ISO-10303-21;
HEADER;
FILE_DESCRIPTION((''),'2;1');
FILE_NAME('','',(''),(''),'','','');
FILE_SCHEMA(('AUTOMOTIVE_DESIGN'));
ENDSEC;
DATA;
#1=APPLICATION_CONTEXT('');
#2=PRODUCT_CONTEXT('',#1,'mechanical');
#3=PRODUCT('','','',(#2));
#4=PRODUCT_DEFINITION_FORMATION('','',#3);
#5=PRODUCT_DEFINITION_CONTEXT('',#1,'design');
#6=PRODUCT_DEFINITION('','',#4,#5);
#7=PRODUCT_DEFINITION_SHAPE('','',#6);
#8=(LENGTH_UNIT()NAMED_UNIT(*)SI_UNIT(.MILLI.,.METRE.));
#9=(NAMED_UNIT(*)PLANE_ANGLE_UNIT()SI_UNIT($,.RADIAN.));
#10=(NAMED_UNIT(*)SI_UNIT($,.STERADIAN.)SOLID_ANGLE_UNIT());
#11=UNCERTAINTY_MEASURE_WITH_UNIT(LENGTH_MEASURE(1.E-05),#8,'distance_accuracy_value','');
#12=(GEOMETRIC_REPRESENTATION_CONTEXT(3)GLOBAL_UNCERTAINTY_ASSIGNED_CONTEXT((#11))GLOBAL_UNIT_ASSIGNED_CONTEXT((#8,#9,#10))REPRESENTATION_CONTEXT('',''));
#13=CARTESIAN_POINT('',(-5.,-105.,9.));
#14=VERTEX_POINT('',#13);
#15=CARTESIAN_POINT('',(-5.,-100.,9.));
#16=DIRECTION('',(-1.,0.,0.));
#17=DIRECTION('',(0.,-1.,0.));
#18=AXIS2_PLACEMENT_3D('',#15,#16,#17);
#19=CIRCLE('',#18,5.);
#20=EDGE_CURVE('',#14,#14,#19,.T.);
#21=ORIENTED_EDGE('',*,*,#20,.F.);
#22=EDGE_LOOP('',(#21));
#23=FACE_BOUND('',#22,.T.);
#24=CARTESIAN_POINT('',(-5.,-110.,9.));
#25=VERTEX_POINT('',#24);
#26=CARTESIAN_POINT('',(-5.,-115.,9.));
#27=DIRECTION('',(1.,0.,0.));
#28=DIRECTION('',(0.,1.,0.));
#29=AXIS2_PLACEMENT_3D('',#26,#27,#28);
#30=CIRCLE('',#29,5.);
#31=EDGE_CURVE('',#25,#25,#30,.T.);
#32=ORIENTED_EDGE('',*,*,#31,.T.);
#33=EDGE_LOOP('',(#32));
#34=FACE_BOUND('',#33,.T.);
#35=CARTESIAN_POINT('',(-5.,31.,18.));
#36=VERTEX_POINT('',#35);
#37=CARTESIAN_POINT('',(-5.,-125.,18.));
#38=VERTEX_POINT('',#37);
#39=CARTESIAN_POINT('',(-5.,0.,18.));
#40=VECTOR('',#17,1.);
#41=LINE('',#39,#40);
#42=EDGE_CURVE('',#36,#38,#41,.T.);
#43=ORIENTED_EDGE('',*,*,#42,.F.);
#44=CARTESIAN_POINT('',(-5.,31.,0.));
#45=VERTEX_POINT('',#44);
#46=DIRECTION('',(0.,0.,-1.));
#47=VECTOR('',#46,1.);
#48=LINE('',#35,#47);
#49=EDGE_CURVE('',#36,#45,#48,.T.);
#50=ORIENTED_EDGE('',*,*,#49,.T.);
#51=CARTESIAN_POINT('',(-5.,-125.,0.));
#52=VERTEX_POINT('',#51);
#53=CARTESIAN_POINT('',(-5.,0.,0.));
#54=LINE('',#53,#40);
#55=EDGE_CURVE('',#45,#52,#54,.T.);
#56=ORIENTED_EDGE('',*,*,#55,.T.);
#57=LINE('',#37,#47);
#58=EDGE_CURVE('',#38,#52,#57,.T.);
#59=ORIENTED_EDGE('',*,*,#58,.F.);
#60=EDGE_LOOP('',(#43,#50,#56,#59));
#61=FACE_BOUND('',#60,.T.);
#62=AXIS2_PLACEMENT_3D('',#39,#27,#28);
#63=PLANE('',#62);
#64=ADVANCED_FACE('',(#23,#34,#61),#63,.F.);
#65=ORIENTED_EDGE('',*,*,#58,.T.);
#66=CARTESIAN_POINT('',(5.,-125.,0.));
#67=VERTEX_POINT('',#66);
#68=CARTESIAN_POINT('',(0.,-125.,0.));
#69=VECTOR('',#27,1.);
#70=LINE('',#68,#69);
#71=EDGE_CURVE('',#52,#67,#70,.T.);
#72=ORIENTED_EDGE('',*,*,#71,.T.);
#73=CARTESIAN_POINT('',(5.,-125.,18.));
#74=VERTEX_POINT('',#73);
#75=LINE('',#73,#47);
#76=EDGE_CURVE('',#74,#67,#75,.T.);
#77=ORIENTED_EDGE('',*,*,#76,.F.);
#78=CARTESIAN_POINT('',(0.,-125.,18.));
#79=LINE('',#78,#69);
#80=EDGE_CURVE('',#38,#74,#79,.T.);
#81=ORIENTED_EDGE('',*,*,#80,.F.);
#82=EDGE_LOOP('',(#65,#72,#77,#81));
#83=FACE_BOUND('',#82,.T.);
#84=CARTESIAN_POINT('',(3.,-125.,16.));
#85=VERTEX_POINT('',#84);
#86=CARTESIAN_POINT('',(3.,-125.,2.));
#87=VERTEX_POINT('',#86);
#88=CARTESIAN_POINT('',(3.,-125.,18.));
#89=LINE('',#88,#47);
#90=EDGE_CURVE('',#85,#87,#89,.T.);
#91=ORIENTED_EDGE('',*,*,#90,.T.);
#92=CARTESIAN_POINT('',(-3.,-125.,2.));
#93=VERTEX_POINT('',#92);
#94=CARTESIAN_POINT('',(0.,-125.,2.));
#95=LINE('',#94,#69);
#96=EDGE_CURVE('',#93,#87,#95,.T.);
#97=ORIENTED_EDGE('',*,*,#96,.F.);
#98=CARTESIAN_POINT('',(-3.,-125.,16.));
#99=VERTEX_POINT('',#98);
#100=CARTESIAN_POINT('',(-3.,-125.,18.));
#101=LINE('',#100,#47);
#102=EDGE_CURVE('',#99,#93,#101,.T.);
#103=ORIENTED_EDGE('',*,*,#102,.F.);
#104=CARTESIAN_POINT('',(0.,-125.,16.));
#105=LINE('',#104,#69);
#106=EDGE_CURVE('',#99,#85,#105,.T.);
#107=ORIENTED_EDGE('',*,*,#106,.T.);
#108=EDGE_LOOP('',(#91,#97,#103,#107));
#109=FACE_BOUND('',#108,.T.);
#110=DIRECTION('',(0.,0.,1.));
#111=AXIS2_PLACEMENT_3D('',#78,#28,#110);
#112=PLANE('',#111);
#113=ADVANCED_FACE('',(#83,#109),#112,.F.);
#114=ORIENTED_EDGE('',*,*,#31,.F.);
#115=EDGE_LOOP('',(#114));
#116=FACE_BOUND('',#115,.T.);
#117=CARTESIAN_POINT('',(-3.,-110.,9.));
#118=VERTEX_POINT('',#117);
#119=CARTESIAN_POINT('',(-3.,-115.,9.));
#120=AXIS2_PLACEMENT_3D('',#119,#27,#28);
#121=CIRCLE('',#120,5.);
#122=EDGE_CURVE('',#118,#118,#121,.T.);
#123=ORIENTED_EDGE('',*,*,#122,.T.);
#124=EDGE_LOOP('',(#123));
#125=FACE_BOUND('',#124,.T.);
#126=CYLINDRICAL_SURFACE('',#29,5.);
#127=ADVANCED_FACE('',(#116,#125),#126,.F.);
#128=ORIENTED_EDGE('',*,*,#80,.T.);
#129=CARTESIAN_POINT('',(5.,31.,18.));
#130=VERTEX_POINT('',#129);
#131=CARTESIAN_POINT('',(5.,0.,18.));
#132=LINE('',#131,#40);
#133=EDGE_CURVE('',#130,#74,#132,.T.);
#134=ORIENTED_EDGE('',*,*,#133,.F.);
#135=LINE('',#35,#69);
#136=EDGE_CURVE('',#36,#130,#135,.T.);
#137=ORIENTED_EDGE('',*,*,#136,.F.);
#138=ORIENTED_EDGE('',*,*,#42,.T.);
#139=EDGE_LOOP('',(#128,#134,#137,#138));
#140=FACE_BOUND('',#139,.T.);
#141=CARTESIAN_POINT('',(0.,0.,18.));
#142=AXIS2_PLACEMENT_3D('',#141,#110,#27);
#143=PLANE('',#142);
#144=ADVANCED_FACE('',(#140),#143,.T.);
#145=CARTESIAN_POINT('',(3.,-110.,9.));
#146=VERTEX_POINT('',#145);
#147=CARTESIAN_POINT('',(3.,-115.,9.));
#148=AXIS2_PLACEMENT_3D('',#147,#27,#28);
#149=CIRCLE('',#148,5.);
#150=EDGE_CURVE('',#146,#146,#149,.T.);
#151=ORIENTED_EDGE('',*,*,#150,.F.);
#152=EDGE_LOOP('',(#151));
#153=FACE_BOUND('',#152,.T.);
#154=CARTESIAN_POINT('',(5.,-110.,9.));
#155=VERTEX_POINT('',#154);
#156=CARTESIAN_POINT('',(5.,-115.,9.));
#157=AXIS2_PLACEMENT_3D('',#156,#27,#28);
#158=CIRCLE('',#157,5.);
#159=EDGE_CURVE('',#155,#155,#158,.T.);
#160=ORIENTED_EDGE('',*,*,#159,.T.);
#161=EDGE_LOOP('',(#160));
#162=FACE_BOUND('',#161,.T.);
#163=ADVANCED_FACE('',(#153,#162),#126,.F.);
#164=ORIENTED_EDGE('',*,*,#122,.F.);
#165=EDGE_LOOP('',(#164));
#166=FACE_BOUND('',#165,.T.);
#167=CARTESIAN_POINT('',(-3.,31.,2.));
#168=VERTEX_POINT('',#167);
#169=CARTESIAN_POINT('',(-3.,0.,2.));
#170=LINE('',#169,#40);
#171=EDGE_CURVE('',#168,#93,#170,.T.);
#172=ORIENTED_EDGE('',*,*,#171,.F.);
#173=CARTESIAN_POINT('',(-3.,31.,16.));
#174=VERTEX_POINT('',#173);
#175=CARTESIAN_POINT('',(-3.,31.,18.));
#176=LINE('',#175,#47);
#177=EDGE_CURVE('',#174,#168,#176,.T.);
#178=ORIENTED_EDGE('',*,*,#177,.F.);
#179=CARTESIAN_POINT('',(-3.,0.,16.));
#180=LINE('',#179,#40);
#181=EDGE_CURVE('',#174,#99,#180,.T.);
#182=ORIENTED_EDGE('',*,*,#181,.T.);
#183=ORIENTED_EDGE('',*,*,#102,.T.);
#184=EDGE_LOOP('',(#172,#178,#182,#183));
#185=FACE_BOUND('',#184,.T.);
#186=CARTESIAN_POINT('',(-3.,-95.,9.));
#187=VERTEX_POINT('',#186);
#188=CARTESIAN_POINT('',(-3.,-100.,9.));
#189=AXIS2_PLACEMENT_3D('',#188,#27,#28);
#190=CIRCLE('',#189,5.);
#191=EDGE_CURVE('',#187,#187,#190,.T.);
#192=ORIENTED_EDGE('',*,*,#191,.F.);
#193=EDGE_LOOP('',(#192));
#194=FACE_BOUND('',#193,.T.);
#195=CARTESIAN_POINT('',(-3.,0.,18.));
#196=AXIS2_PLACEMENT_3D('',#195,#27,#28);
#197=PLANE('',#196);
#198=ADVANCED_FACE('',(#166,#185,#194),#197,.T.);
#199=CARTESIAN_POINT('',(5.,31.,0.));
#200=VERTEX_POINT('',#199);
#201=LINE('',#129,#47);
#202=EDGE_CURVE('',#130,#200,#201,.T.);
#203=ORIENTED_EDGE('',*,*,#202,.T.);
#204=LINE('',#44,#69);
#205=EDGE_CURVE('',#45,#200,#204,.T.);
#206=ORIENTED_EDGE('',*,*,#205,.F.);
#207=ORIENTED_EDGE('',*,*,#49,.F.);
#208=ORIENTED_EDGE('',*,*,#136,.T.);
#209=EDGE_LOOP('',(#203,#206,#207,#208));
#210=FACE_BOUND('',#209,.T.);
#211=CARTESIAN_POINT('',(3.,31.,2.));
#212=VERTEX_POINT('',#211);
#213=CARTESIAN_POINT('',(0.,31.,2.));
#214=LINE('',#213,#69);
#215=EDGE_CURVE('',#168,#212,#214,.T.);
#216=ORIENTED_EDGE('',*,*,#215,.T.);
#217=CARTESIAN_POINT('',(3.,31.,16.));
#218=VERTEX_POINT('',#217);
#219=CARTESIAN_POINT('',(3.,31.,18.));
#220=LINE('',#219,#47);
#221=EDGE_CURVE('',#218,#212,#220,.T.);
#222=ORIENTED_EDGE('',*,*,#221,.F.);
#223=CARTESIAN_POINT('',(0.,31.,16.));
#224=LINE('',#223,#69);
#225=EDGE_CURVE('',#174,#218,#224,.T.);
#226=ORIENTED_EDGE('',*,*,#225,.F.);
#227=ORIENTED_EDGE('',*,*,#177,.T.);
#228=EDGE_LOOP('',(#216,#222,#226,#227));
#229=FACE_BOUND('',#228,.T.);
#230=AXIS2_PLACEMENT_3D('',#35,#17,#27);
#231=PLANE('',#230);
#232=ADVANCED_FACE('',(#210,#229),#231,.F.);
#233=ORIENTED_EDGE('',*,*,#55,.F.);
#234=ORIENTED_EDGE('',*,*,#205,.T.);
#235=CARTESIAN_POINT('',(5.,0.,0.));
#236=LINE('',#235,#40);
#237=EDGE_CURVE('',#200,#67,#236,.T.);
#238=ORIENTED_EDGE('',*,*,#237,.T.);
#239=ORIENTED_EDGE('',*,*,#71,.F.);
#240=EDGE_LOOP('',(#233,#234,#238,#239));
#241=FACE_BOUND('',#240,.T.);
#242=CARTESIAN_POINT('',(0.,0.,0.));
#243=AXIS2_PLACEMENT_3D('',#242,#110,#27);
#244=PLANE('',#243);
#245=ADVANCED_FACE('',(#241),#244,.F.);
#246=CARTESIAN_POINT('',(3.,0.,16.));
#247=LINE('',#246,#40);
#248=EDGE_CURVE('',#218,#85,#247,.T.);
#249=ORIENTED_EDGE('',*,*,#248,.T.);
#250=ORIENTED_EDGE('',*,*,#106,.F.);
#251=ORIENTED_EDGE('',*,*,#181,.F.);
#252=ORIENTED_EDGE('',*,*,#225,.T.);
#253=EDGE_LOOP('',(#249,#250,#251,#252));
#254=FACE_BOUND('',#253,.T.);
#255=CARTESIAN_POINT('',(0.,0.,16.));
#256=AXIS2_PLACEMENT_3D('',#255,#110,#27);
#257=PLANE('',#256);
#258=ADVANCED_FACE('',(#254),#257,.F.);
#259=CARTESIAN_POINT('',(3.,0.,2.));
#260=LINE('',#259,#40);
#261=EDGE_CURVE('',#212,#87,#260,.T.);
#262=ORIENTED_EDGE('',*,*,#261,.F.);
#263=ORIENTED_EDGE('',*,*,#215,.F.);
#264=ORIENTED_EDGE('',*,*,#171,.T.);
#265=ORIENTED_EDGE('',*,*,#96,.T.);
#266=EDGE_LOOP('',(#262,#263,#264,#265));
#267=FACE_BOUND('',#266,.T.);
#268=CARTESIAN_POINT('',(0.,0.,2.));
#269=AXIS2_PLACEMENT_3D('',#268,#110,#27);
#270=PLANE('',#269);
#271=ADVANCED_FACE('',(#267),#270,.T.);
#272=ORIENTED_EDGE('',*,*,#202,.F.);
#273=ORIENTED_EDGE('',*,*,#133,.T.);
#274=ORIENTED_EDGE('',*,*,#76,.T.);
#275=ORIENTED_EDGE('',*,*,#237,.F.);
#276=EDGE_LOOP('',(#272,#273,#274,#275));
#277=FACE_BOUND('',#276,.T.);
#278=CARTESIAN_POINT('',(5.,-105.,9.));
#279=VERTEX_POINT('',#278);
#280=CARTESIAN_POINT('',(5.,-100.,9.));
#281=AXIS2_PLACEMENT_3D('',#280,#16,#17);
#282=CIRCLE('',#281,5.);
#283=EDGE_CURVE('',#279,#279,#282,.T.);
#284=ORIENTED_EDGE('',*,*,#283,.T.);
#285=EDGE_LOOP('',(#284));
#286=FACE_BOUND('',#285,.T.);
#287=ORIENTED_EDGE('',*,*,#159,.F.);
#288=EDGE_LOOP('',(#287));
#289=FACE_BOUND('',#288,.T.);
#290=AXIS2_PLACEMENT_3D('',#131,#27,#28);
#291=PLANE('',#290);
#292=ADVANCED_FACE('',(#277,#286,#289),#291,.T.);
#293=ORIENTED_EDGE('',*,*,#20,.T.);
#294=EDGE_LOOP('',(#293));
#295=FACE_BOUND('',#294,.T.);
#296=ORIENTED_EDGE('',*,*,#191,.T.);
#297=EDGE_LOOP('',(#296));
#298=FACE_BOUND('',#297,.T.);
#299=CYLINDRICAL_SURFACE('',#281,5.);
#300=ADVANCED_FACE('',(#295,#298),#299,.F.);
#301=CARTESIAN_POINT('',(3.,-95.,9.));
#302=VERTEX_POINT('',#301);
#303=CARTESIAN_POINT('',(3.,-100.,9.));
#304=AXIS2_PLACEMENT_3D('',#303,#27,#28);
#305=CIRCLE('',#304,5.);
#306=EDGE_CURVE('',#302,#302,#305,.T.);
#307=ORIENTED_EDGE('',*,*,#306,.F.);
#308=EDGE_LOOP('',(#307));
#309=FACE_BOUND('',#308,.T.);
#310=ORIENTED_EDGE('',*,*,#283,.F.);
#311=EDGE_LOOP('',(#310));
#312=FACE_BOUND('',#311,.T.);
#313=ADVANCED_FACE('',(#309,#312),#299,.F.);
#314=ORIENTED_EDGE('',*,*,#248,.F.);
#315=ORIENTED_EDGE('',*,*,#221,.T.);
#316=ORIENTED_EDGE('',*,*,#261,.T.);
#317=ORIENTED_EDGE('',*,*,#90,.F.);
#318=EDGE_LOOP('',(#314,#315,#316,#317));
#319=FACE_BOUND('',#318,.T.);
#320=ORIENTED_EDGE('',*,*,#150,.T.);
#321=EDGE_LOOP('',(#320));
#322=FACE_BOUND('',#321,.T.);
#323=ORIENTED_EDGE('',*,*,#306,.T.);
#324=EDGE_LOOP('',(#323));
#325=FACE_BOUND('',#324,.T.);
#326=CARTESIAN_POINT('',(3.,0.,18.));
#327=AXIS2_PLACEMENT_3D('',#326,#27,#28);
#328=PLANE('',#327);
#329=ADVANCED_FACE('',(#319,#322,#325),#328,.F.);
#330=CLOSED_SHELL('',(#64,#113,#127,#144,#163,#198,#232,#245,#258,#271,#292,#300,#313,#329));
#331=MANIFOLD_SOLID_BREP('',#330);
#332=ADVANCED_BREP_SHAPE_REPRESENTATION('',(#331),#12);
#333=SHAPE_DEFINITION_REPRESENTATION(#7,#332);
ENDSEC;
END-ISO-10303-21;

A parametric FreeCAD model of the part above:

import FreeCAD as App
import Part
import Sketcher

V = App.Vector


def faces_at(feature, points):
    """Names of the faces that lie closest to the given points."""
    faces = feature.Shape.Faces
    near = lambda p: min(range(len(faces)), key=lambda i: faces[i].distToShape(Part.Vertex(*p))[0])
    return sorted({f"Face{near(p) + 1}" for p in points})


def add_polygon(sketch, points):
    """Adds a closed chain of lines whose ends are joined by coincident constraints."""
    first, n = sketch.GeometryCount, len(points)
    for a, b in zip(points, points[1:] + points[:1]):
        sketch.addGeometry(Part.LineSegment(App.Vector(*a, 0), App.Vector(*b, 0)), False)
    for i in range(n):
        sketch.addConstraint(Sketcher.Constraint("Coincident", first + i, 2, first + (i + 1) % n, 1))

doc = App.newDocument("Part")
body = doc.addObject("PartDesign::Body", "Body")

sketch1 = body.newObject("Sketcher::SketchObject", "Sketch")
sketch1.AttachmentSupport = (doc.getObject("XY_Plane"), [""])
sketch1.MapMode = "FlatFace"
add_polygon(sketch1, [(-5, 125), (-5, -125), (5, -125), (5, 125)])
sketch1.addConstraint([
    Sketcher.Constraint("Vertical", 0),
    Sketcher.Constraint("Horizontal", 1),
    Sketcher.Constraint("Vertical", 2),
    Sketcher.Constraint("Horizontal", 3),
    Sketcher.Constraint("Symmetric", 0, 2, 2, 2, -1, 1),
    Sketcher.Constraint("DistanceX", 1, 1, 1, 2, 10.0),
    Sketcher.Constraint("DistanceY", 0, 2, 0, 1, 250.0),
])
pad1 = body.newObject("PartDesign::Pad", "Pad")
pad1.Profile = sketch1
pad1.Length = 18
doc.recompute()

thickness = body.newObject("PartDesign::Thickness", "Thickness")
thickness.Base = (pad1, faces_at(pad1, [(0, 125, 9), (0, -125, 9)]))
thickness.Value = 2
thickness.Reversed = True
thickness.Join = "Intersection"

sketch2 = body.newObject("Sketcher::SketchObject", "Sketch001")
sketch2.AttachmentSupport = (doc.getObject("YZ_Plane"), [""])
sketch2.MapMode = "FlatFace"
sketch2.AttachmentOffset = App.Placement(V(0, 0, -5), App.Rotation())
sketch2.addGeometry(Part.Circle(V(-100, 9, 0), V(0, 0, 1), 5), False)
sketch2.addConstraint([
    Sketcher.Constraint("Diameter", 0, 10.0),
    Sketcher.Constraint("DistanceX", 0, 3, -1, 1, 100.0),
    Sketcher.Constraint("DistanceY", -1, 1, 0, 3, 9.0),
])
pocket1 = body.newObject("PartDesign::Pocket", "Pocket")
pocket1.Profile = sketch2
pocket1.Length = 10
pocket1.Reversed = True

sketch3 = body.newObject("Sketcher::SketchObject", "Sketch002")
sketch3.AttachmentSupport = (doc.getObject("YZ_Plane"), [""])
sketch3.MapMode = "FlatFace"
sketch3.AttachmentOffset = App.Placement(V(0, 0, 5), App.Rotation())
sketch3.addGeometry(Part.Circle(V(-115, 9, 0), V(0, 0, 1), 5), False)
sketch3.addConstraint([
    Sketcher.Constraint("Diameter", 0, 10.0),
    Sketcher.Constraint("DistanceX", 0, 3, -1, 1, 115.0),
    Sketcher.Constraint("DistanceY", -1, 1, 0, 3, 9.0),
])
pocket2 = body.newObject("PartDesign::Pocket", "Pocket001")
pocket2.Profile = sketch3
pocket2.Length = 10

sketch4 = body.newObject("Sketcher::SketchObject", "Sketch003")
sketch4.AttachmentSupport = (doc.getObject("YZ_Plane"), [""])
sketch4.MapMode = "FlatFace"
sketch4.AttachmentOffset = App.Placement(V(0, 0, 5), App.Rotation())
add_polygon(sketch4, [(125, 18), (31, 18), (31, 0), (125, 0)])
sketch4.addConstraint([
    Sketcher.Constraint("Horizontal", 0),
    Sketcher.Constraint("Vertical", 1),
    Sketcher.Constraint("Horizontal", 2),
    Sketcher.Constraint("Vertical", 3),
    Sketcher.Constraint("PointOnObject", 1, 2, -1),
    Sketcher.Constraint("DistanceX", 0, 2, 0, 1, 94.0),
    Sketcher.Constraint("DistanceY", 1, 2, 1, 1, 18.0),
    Sketcher.Constraint("DistanceX", -1, 1, 0, 2, 31.0),
])
pocket3 = body.newObject("PartDesign::Pocket", "Pocket002")
pocket3.Profile = sketch4
pocket3.Length = 10

doc.recompute()
